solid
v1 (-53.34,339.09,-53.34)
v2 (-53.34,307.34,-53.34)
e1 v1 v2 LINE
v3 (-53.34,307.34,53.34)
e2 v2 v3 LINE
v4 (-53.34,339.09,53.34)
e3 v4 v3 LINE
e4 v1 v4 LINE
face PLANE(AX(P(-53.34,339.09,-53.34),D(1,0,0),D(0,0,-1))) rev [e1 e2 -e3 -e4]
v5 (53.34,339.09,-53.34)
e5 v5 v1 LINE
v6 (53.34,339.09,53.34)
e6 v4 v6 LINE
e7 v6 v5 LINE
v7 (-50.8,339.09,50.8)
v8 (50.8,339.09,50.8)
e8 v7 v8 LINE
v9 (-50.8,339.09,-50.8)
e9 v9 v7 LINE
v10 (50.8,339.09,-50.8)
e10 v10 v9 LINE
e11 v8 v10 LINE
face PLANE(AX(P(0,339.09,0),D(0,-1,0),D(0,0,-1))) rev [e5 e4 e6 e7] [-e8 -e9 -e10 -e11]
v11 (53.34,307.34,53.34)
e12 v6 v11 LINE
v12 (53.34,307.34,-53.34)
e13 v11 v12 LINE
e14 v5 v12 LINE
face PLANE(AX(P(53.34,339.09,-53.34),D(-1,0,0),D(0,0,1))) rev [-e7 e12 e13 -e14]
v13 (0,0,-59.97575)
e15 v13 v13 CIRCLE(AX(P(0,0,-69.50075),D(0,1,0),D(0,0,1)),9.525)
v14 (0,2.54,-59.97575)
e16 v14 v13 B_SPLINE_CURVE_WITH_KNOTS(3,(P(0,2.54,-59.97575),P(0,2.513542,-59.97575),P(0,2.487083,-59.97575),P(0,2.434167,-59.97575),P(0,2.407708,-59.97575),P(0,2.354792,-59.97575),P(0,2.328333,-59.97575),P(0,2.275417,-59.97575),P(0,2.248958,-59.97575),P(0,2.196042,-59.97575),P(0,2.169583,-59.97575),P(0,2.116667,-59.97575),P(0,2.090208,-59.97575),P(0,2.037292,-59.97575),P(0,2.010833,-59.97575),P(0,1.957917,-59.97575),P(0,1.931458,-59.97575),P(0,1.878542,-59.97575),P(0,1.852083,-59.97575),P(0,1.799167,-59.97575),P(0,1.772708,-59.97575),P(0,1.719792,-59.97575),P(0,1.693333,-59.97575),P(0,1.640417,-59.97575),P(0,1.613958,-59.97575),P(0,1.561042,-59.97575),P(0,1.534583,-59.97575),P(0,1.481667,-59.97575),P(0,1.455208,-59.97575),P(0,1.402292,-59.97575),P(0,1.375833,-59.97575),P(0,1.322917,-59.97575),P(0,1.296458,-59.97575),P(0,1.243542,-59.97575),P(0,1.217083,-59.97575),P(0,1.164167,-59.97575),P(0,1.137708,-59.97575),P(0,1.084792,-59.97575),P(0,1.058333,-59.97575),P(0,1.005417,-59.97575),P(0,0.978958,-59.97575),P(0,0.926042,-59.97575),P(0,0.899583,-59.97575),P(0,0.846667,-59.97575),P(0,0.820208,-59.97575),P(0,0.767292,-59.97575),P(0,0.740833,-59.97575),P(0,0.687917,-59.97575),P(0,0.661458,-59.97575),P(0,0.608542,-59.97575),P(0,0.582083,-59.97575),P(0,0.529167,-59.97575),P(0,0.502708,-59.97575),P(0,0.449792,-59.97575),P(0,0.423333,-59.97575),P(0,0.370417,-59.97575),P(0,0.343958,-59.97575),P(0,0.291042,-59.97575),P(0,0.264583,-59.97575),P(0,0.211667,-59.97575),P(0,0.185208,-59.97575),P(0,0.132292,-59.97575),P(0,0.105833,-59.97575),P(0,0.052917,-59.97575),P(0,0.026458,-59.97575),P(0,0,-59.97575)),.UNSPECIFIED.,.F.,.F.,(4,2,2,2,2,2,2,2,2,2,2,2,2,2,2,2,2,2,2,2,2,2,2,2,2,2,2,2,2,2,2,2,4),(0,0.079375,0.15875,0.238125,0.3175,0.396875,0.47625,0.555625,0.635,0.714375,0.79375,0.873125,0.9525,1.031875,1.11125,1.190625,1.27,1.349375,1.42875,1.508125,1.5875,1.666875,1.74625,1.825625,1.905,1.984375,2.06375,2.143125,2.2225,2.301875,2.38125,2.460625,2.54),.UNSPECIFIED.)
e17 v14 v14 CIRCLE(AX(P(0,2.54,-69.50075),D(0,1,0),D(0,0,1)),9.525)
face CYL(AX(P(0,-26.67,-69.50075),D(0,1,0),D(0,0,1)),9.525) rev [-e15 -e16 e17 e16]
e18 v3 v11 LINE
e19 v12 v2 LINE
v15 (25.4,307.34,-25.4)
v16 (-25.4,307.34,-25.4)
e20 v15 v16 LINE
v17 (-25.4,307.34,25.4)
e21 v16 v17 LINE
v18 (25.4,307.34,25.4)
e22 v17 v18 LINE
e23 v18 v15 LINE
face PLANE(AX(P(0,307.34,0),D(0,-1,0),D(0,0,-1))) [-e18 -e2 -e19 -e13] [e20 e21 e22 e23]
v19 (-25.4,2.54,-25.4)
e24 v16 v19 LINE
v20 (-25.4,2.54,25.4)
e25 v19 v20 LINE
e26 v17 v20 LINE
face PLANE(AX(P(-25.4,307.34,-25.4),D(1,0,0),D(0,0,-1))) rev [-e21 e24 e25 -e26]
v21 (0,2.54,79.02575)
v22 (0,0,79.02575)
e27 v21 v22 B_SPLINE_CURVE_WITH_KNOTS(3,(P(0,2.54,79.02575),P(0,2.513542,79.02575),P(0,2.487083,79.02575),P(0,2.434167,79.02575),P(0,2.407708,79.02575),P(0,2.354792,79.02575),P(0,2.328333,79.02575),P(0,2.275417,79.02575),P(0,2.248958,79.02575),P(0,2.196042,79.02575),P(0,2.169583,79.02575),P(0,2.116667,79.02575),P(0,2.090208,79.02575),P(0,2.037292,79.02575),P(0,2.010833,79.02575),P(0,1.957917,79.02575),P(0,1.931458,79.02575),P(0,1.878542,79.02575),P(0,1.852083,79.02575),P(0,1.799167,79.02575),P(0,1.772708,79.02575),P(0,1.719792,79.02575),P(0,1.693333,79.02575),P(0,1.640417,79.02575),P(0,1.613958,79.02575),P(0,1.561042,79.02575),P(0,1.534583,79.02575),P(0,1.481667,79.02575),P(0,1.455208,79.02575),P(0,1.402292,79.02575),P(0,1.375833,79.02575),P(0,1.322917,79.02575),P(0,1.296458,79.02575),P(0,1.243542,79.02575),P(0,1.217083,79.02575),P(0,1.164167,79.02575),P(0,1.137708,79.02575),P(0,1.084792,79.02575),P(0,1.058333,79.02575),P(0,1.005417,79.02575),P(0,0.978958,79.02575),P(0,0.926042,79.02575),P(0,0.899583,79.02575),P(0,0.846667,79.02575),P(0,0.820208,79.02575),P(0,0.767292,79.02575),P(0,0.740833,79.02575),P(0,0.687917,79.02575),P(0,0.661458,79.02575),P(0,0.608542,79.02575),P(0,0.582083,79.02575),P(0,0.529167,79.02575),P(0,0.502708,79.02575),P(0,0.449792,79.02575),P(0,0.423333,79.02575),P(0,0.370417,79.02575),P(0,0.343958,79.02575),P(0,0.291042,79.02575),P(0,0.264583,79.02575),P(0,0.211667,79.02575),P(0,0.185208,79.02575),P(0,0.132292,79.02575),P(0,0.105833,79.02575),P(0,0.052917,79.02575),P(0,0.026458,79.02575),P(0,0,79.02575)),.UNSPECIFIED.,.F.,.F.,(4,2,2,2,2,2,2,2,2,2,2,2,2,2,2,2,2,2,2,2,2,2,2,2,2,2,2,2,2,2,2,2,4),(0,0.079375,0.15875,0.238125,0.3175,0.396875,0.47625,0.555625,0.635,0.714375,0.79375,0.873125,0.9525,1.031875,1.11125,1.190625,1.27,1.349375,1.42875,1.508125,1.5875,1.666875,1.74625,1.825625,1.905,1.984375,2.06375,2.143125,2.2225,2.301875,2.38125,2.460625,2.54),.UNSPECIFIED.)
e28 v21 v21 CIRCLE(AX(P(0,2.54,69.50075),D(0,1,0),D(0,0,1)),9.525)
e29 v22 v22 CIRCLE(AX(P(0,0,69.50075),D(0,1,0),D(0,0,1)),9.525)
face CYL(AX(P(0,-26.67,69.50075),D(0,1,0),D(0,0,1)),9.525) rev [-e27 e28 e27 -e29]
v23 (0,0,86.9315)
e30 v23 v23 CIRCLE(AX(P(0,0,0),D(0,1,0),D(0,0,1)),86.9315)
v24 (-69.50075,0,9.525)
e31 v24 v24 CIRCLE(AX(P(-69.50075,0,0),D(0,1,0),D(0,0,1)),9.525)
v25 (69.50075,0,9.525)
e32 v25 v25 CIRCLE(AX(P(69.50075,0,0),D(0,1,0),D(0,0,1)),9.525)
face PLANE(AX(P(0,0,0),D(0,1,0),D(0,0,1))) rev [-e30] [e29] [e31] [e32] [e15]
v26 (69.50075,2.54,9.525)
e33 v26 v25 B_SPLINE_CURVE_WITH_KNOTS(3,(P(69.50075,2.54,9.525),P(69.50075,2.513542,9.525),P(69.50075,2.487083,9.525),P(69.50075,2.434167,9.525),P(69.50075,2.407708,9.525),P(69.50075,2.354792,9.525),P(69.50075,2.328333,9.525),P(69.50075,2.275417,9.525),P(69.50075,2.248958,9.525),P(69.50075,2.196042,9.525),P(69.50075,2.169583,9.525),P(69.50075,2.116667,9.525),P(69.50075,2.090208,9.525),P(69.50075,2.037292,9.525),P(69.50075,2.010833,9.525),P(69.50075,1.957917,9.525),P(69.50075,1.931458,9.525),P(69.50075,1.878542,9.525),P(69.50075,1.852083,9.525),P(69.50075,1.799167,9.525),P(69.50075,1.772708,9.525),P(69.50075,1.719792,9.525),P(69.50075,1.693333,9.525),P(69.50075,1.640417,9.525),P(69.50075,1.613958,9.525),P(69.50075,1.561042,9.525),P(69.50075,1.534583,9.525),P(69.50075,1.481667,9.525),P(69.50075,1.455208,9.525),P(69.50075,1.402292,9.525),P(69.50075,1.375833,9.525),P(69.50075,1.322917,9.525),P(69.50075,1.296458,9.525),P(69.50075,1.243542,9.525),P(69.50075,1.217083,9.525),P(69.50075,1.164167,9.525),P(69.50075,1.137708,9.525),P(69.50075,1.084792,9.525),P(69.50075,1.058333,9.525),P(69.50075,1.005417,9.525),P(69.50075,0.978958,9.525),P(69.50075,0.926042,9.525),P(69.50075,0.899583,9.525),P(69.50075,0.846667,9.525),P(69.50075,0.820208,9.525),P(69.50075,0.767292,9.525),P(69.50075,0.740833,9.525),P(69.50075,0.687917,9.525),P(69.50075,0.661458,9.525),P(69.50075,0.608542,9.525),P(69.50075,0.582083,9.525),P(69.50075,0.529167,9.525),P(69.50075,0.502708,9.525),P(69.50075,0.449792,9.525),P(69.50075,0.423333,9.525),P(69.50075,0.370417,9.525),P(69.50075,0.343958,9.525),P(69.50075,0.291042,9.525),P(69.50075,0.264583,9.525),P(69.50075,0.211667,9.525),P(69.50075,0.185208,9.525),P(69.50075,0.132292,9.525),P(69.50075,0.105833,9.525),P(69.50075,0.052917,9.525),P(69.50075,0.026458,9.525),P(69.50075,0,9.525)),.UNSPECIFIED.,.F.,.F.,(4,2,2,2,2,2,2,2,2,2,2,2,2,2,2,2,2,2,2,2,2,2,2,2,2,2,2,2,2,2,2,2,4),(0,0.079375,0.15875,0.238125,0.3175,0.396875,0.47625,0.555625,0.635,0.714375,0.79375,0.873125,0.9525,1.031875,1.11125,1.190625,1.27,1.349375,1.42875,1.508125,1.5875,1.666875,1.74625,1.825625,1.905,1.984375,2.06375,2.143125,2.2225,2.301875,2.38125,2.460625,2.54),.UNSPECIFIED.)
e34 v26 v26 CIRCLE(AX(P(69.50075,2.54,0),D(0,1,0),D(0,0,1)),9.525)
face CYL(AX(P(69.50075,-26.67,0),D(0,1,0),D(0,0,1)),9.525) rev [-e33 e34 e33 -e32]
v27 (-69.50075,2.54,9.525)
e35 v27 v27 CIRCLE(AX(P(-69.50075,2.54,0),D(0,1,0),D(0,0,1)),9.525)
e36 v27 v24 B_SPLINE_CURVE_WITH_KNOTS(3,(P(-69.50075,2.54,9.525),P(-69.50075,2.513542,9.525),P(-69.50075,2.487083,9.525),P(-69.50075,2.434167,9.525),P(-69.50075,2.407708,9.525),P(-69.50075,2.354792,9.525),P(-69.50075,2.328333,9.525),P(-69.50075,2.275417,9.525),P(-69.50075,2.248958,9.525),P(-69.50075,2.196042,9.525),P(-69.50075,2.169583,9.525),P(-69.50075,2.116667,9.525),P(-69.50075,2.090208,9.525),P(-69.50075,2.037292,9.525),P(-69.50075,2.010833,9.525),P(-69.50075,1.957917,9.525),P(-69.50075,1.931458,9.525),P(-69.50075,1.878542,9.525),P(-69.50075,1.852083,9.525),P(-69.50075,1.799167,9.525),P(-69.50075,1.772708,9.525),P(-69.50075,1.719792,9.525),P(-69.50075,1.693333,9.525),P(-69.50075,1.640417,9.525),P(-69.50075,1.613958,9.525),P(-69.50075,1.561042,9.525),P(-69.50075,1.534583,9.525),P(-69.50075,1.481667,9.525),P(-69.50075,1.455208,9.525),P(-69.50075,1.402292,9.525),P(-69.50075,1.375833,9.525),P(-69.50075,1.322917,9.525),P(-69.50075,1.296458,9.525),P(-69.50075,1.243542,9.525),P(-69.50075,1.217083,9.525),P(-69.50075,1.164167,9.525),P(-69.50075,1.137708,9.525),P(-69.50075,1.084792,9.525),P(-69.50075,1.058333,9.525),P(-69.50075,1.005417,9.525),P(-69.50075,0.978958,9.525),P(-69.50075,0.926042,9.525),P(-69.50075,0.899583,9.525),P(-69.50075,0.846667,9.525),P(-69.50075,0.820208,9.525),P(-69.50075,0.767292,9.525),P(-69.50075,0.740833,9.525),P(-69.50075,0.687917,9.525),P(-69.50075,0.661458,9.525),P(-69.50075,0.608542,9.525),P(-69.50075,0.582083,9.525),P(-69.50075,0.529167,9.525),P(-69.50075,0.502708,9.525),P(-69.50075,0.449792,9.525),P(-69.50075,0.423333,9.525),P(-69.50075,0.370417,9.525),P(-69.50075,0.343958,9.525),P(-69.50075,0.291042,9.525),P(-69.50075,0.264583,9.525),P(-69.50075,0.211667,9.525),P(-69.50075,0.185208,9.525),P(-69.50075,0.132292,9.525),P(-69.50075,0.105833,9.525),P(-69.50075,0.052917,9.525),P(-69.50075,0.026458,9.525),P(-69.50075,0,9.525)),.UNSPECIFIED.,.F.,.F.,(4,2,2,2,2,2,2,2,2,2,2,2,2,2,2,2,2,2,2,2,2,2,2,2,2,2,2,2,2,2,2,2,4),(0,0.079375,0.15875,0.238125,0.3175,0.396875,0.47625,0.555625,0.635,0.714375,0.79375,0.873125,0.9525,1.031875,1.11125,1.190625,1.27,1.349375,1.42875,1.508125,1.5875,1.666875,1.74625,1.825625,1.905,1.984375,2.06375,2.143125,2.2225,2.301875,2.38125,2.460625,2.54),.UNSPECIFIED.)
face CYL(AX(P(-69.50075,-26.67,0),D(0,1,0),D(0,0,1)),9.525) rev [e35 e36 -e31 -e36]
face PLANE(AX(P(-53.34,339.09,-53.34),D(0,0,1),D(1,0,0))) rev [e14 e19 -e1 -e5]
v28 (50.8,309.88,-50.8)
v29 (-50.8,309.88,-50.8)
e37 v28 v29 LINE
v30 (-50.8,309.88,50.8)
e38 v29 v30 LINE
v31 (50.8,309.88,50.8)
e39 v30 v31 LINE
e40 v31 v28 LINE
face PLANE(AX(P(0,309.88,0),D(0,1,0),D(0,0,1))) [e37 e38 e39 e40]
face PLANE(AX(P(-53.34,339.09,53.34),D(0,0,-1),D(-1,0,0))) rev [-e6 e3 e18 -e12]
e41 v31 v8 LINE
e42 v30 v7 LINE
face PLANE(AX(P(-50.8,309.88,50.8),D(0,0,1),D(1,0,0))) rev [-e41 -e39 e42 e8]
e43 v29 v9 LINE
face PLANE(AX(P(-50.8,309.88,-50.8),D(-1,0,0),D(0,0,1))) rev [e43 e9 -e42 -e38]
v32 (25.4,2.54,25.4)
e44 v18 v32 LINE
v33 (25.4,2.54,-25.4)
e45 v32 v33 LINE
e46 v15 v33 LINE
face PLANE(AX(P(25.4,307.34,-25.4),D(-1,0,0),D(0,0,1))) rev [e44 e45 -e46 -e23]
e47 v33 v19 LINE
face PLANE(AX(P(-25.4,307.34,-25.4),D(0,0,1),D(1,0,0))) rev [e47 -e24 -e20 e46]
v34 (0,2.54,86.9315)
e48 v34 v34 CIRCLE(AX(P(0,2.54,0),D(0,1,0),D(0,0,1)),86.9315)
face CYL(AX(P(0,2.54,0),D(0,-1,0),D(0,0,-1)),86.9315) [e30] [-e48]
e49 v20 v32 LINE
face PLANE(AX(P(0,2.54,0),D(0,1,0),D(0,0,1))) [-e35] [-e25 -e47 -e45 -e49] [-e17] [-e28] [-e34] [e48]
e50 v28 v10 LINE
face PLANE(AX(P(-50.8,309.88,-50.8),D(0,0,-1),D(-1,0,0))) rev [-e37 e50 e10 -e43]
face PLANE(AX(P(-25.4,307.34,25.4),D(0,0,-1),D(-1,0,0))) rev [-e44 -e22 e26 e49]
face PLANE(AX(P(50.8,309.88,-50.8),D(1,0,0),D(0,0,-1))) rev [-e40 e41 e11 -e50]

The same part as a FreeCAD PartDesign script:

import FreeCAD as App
import Part
import Sketcher
from FreeCAD import Vector
Q = App.Units.Quantity

doc = App.newDocument("Part")
body = doc.addObject("PartDesign::Body", "Body")

# Sketch on XZ plane
sketch1 = doc.addObject("Sketcher::SketchObject", "Sketch")
body.addObject(sketch1)
sketch1.AttachmentSupport = (doc.XZ_Plane, [""])
sketch1.MapMode = "FlatFace"
sketch1.addGeometry(Part.Circle(Vector(0, 0, 0), Vector(0, 0, 1), 87), False)
sketch1.addConstraint([
    Sketcher.Constraint("Coincident", 0, 3, -1, 1),
    Sketcher.Constraint("Diameter", 0, Q("6.845 in")),
])
pad1 = doc.addObject("PartDesign::Pad", "Pad")
body.addObject(pad1)
pad1.Profile = sketch1
pad1.Length = Q("0.1 in")
pad1.Reversed = True

# Sketch on XZ plane
sketch2 = doc.addObject("Sketcher::SketchObject", "Sketch001")
body.addObject(sketch2)
sketch2.AttachmentSupport = (doc.XZ_Plane, [""])
sketch2.MapMode = "FlatFace"
sketch2.AttachmentOffset = App.Placement(Vector(0, 0, -0.1 * 25.4), App.Rotation())
sketch2.addGeometry([
    Part.LineSegment(Vector(-25, -25, 0), Vector(-25, 25, 0)),
    Part.LineSegment(Vector(-25, 25, 0), Vector(25, 25, 0)),
    Part.LineSegment(Vector(25, 25, 0), Vector(25, -25, 0)),
    Part.LineSegment(Vector(25, -25, 0), Vector(-25, -25, 0)),
], False)
sketch2.addConstraint([
    Sketcher.Constraint("Coincident", 0, 2, 1, 1),
    Sketcher.Constraint("Coincident", 1, 2, 2, 1),
    Sketcher.Constraint("Coincident", 2, 2, 3, 1),
    Sketcher.Constraint("Coincident", 3, 2, 0, 1),
    Sketcher.Constraint("Vertical", 0),
    Sketcher.Constraint("Horizontal", 1),
    Sketcher.Constraint("Vertical", 2),
    Sketcher.Constraint("Horizontal", 3),
    Sketcher.Constraint("Symmetric", 0, 2, 2, 2, -1, 1),
    Sketcher.Constraint("Equal", 3, 0),
    Sketcher.Constraint("DistanceX", 1, 1, 1, 2, Q("2 in")),
])
pad2 = doc.addObject("PartDesign::Pad", "Pad001")
body.addObject(pad2)
pad2.Profile = sketch2
pad2.Length = Q("12 in")
pad2.Reversed = True

# Sketch on XZ plane
sketch3 = doc.addObject("Sketcher::SketchObject", "Sketch002")
body.addObject(sketch3)
sketch3.AttachmentSupport = (doc.XZ_Plane, [""])
sketch3.MapMode = "FlatFace"
sketch3.AttachmentOffset = App.Placement(Vector(0, 0, -12.1 * 25.4), App.Rotation())
sketch3.addGeometry([
    Part.LineSegment(Vector(-53, -53, 0), Vector(-53, 53, 0)),
    Part.LineSegment(Vector(-53, 53, 0), Vector(53, 53, 0)),
    Part.LineSegment(Vector(53, 53, 0), Vector(53, -53, 0)),
    Part.LineSegment(Vector(53, -53, 0), Vector(-53, -53, 0)),
], False)
sketch3.addConstraint([
    Sketcher.Constraint("Coincident", 0, 2, 1, 1),
    Sketcher.Constraint("Coincident", 1, 2, 2, 1),
    Sketcher.Constraint("Coincident", 2, 2, 3, 1),
    Sketcher.Constraint("Coincident", 3, 2, 0, 1),
    Sketcher.Constraint("Vertical", 0),
    Sketcher.Constraint("Horizontal", 1),
    Sketcher.Constraint("Vertical", 2),
    Sketcher.Constraint("Horizontal", 3),
    Sketcher.Constraint("Symmetric", 0, 2, 2, 2, -1, 1),
    Sketcher.Constraint("Equal", 3, 0),
    Sketcher.Constraint("DistanceX", 1, 1, 1, 2, Q("4.2 in")),
])
pad3 = doc.addObject("PartDesign::Pad", "Pad002")
body.addObject(pad3)
pad3.Profile = sketch3
pad3.Length = Q("1.25 in")
pad3.Reversed = True

# Sketch on XZ plane
sketch4 = doc.addObject("Sketcher::SketchObject", "Sketch003")
body.addObject(sketch4)
sketch4.AttachmentSupport = (doc.XZ_Plane, [""])
sketch4.MapMode = "FlatFace"
sketch4.AttachmentOffset = App.Placement(Vector(0, 0, -13.35 * 25.4), App.Rotation())
sketch4.addGeometry([
    Part.LineSegment(Vector(-51, -51, 0), Vector(-51, 51, 0)),
    Part.LineSegment(Vector(-51, 51, 0), Vector(51, 51, 0)),
    Part.LineSegment(Vector(51, 51, 0), Vector(51, -51, 0)),
    Part.LineSegment(Vector(51, -51, 0), Vector(-51, -51, 0)),
], False)
sketch4.addConstraint([
    Sketcher.Constraint("Coincident", 0, 2, 1, 1),
    Sketcher.Constraint("Coincident", 1, 2, 2, 1),
    Sketcher.Constraint("Coincident", 2, 2, 3, 1),
    Sketcher.Constraint("Coincident", 3, 2, 0, 1),
    Sketcher.Constraint("Vertical", 0),
    Sketcher.Constraint("Horizontal", 1),
    Sketcher.Constraint("Vertical", 2),
    Sketcher.Constraint("Horizontal", 3),
    Sketcher.Constraint("Symmetric", 0, 2, 2, 2, -1, 1),
    Sketcher.Constraint("Equal", 3, 0),
    Sketcher.Constraint("DistanceX", 1, 1, 1, 2, Q("4 in")),
])
pocket1 = doc.addObject("PartDesign::Pocket", "Pocket")
body.addObject(pocket1)
pocket1.Profile = sketch4
pocket1.Length = Q("1.15 in")
pocket1.Reversed = True

# Sketch on XZ plane
sketch5 = doc.addObject("Sketcher::SketchObject", "Sketch004")
body.addObject(sketch5)
sketch5.AttachmentSupport = (doc.XZ_Plane, [""])
sketch5.MapMode = "FlatFace"
sketch5.AttachmentOffset = App.Placement(Vector(0, 0, -0.1 * 25.4), App.Rotation())
sketch5.addGeometry([
    Part.Circle(Vector(0, -70, 0), Vector(0, 0, 1), 10),
    Part.Circle(Vector(70, 0, 0), Vector(0, 0, 1), 10),
    Part.Circle(Vector(0, 70, 0), Vector(0, 0, 1), 10),
    Part.Circle(Vector(-70, 0, 0), Vector(0, 0, 1), 10),
], False)
sketch5.addConstraint([
    Sketcher.Constraint("Equal", 0, 1),
    Sketcher.Constraint("Equal", 1, 2),
    Sketcher.Constraint("Equal", 2, 3),
    Sketcher.Constraint("Symmetric", 0, 3, 2, 3, -1, 1),
    Sketcher.Constraint("Symmetric", 1, 3, 3, 3, -1, 1),
    Sketcher.Constraint("PointOnObject", 0, 3, -2),
    Sketcher.Constraint("PointOnObject", 1, 3, -1),
    Sketcher.Constraint("Diameter", 0, Q("0.75 in")),
    Sketcher.Constraint("DistanceY", 0, 3, 2, 3, Q("5.4725 in")),
    Sketcher.Constraint("DistanceX", 3, 3, 1, 3, Q("5.4725 in")),
])
pocket2 = doc.addObject("PartDesign::Pocket", "Pocket001")
body.addObject(pocket2)
pocket2.Profile = sketch5
pocket2.Length = Q("1.15 in")
pocket2.Reversed = True

doc.recompute()
